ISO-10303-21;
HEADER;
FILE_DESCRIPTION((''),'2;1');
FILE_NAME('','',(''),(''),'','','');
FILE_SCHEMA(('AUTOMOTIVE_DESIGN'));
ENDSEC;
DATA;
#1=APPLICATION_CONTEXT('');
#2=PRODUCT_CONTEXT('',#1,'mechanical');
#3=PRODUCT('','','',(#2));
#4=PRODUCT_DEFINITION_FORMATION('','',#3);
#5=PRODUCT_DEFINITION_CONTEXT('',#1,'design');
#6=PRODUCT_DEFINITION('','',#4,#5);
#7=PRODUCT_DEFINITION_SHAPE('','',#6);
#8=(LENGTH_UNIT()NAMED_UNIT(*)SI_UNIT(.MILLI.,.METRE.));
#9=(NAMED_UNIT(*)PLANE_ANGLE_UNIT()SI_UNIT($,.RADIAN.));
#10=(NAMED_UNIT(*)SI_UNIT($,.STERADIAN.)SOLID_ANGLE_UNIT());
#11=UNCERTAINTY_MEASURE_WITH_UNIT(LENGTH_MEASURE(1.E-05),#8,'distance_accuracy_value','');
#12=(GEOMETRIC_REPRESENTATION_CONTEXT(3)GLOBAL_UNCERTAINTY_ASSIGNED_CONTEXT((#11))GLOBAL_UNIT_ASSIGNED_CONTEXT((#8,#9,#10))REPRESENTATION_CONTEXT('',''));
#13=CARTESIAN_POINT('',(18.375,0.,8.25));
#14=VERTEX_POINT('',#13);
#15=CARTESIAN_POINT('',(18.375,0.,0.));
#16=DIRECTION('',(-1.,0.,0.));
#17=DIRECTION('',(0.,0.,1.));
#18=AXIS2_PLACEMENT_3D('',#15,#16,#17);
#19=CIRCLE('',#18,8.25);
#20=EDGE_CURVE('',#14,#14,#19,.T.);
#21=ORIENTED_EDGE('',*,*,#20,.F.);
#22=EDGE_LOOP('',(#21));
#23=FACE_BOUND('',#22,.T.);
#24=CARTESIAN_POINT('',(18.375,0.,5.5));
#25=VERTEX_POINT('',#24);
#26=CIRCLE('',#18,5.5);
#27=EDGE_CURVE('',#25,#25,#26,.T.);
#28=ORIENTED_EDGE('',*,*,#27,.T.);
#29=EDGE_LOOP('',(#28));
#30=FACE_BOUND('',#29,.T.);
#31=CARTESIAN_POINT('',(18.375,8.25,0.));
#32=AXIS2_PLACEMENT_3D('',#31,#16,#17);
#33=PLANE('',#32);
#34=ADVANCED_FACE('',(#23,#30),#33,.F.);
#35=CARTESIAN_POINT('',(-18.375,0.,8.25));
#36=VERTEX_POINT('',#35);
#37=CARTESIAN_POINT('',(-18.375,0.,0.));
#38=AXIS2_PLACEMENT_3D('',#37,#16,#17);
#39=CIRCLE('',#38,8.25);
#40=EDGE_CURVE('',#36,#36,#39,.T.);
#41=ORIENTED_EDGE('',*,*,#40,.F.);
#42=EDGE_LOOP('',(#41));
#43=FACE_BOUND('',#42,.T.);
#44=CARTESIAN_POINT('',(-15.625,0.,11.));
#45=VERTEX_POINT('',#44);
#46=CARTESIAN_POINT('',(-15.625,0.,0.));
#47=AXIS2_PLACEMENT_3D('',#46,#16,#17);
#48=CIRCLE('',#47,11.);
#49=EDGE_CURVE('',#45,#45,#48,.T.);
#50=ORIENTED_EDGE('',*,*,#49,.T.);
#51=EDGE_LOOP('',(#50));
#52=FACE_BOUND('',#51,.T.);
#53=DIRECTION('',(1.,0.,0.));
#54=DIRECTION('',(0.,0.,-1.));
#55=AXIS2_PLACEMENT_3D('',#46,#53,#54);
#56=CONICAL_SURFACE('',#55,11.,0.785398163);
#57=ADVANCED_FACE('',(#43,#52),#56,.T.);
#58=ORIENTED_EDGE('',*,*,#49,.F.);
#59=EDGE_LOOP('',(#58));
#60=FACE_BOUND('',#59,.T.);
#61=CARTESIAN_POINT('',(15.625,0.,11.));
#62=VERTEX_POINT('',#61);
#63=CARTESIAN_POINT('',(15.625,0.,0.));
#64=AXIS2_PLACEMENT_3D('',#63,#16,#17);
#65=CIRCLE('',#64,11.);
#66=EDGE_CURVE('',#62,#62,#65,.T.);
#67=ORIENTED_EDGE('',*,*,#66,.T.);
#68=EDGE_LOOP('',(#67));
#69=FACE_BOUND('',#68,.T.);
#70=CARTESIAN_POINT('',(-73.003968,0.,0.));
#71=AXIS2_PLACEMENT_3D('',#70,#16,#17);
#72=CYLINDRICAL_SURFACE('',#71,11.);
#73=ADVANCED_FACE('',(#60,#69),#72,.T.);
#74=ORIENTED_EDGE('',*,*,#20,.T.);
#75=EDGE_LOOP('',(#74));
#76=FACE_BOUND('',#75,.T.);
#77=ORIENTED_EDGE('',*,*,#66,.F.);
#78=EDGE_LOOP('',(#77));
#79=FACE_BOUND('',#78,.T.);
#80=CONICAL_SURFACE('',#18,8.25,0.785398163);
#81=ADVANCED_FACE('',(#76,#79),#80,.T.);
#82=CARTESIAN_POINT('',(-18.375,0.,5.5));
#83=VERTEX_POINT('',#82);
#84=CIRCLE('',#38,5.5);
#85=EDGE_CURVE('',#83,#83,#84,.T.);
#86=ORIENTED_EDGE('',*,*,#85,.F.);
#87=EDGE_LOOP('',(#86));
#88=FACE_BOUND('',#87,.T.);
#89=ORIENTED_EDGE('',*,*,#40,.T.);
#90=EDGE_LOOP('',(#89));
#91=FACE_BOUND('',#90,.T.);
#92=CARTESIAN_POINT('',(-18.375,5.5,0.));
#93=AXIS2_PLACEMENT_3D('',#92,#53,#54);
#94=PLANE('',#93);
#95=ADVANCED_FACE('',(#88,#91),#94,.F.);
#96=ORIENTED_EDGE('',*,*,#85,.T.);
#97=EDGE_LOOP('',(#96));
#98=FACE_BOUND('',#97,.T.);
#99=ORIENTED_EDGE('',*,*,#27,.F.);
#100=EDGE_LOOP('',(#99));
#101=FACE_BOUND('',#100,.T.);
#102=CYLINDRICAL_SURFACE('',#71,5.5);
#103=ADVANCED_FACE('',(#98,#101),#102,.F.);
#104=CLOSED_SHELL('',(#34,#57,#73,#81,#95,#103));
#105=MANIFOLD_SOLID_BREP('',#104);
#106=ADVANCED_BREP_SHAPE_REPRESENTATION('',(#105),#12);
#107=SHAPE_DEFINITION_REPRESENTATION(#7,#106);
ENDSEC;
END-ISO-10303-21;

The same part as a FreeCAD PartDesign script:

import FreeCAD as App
import Part
import Sketcher

V = App.Vector
Q = App.Units.Quantity


def add_polygon(sketch, points):
    """Adds a closed chain of lines whose ends are joined by coincident constraints."""
    first, n = sketch.GeometryCount, len(points)
    for a, b in zip(points, points[1:] + points[:1]):
        sketch.addGeometry(Part.LineSegment(App.Vector(*a, 0), App.Vector(*b, 0)), False)
    for i in range(n):
        sketch.addConstraint(Sketcher.Constraint("Coincident", first + i, 2, first + (i + 1) % n, 1))

doc = App.newDocument("Part")
params = doc.addObject("Spreadsheet::Sheet", "Params")
for row, (alias, value) in enumerate([
    ("sketch1_width", "36.75 mm"),
    ("sketch1_height", "2.75 mm"),
    ("revolution_angle", "360 deg"),
], start=1):
    params.set(f"A{row}", alias)
    params.set(f"B{row}", "=" + value)
    params.setAlias(f"B{row}", alias)

body = doc.addObject("PartDesign::Body", "Body")

# Sketch on XY plane
sketch1 = doc.addObject("Sketcher::SketchObject", "Sketch")
body.addObject(sketch1)
sketch1.AttachmentSupport = (doc.XY_Plane, [""])
sketch1.MapMode = "FlatFace"
add_polygon(sketch1, [(-18.375, 8.25), (-18.375, 5.5), (18.375, 5.5), (18.375, 8.25), (15.625, 11), (-15.625, 11)])  # lines 0-5
sketch1.addConstraint(Sketcher.Constraint("Vertical", 0))
sketch1.addConstraint(Sketcher.Constraint("Horizontal", 1))
sketch1.addConstraint(Sketcher.Constraint("Vertical", 2))
sketch1.addConstraint(Sketcher.Constraint("Horizontal", 4))
sketch1.addConstraint(Sketcher.Constraint("Symmetric", 2, 2, 5, 2, -2))
sketch1.addConstraint(Sketcher.Constraint("Perpendicular", 3, 5))
sketch1.addConstraint(Sketcher.Constraint("Equal", 3, 5))
sketch1.addConstraint(Sketcher.Constraint("DistanceY", -1, 1, 3, 2, Q("11 mm")))
sketch1.addConstraint(Sketcher.Constraint("DistanceX", 0, 2, 3, 2, Q("34 mm")))
sketch1.addConstraint(Sketcher.Constraint("DistanceX", 1, 1, 1, 2, Q("36.75 mm")))
sketch1.addConstraint(Sketcher.Constraint("DistanceY", 0, 2, 0, 1, Q("2.75 mm")))
sketch1.setExpression("Constraints[15]", "Params.sketch1_width")
sketch1.setExpression("Constraints[16]", "Params.sketch1_height")
revolution = doc.addObject("PartDesign::Revolution", "Revolution")
body.addObject(revolution)
revolution.Profile = sketch1
revolution.ReferenceAxis = (sketch1, ["H_Axis"])
revolution.setExpression("Angle", "Params.revolution_angle")

doc.recompute()
